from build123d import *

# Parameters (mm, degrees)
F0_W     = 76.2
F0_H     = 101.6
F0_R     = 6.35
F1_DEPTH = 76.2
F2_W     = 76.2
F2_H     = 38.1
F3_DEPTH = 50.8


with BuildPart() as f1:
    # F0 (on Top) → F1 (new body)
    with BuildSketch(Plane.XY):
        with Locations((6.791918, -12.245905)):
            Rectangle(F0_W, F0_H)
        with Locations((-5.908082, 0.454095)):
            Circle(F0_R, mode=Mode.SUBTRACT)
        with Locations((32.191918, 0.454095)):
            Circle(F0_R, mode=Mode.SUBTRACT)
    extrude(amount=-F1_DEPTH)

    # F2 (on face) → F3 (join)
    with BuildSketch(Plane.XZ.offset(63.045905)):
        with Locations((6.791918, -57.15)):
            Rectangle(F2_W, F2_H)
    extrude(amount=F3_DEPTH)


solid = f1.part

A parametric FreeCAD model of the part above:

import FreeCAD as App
import Part
import Sketcher
Q = App.Units.Quantity


def add_polygon(sketch, points):
    """Adds a closed chain of lines whose ends are joined by coincident constraints."""
    first, n = sketch.GeometryCount, len(points)
    for a, b in zip(points, points[1:] + points[:1]):
        sketch.addGeometry(Part.LineSegment(App.Vector(*a, 0), App.Vector(*b, 0)), False)
    for i in range(n):
        sketch.addConstraint(Sketcher.Constraint("Coincident", first + i, 2, first + (i + 1) % n, 1))

doc = App.newDocument("Part")
body = doc.addObject("PartDesign::Body", "Body")

sketch1 = doc.addObject("Sketcher::SketchObject", "Sketch")
body.addObject(sketch1)
sketch1.AttachmentSupport = (doc.XY_Plane, [""])
sketch1.MapMode = "FlatFace"
add_polygon(sketch1, [(-31, 39), (-31, -63), (45, -63), (45, 39)])
sketch1.addGeometry(Part.Circle(App.Vector(-6, 0, 0), App.Vector(0, 0, 1), 6), False)
sketch1.addGeometry(Part.Circle(App.Vector(32, 0, 0), App.Vector(0, 0, 1), 6), False)
sketch1.addConstraint(Sketcher.Constraint("Vertical", 0))
sketch1.addConstraint(Sketcher.Constraint("Horizontal", 1))
sketch1.addConstraint(Sketcher.Constraint("Vertical", 2))
sketch1.addConstraint(Sketcher.Constraint("Horizontal", 3))
sketch1.addConstraint(Sketcher.Constraint("Equal", 4, 5))
sketch1.addConstraint(Sketcher.Constraint("Horizontal", 4, 3, 5, 3))
sketch1.addConstraint(Sketcher.Constraint("Diameter", 4, Q("0.5 in")))
sketch1.addConstraint(Sketcher.Constraint("DistanceX", 1, 1, 1, 2, Q("3 in")))
sketch1.addConstraint(Sketcher.Constraint("DistanceY", 0, 2, 0, 1, Q("4 in")))
sketch1.addConstraint(Sketcher.Constraint("DistanceX", 0, 2, 4, 3, Q("1 in")))
sketch1.addConstraint(Sketcher.Constraint("DistanceX", 4, 3, 5, 3, Q("1.5 in")))
sketch1.addConstraint(Sketcher.Constraint("DistanceY", 0, 2, 4, 3, Q("2.5 in")))
sketch1.addConstraint(Sketcher.Constraint("DistanceX", 0, 2, -1, 1, Q("31.308082 mm")))
sketch1.addConstraint(Sketcher.Constraint("DistanceY", -1, 1, 4, 3, Q("0.454095 mm")))
pad1 = doc.addObject("PartDesign::Pad", "Pad")
body.addObject(pad1)
pad1.Profile = sketch1
pad1.Length = Q("3 in")
pad1.Reversed = True

sketch2 = doc.addObject("Sketcher::SketchObject", "Sketch001")
body.addObject(sketch2)
sketch2.AttachmentSupport = (doc.XZ_Plane, [""])
sketch2.MapMode = "FlatFace"
sketch2.AttachmentOffset = App.Placement(App.Vector(0, 0, 63.045905), App.Rotation())
add_polygon(sketch2, [(-31, -38), (-31, -76), (45, -76), (45, -38)])
sketch2.addConstraint(Sketcher.Constraint("Vertical", 0))
sketch2.addConstraint(Sketcher.Constraint("Horizontal", 1))
sketch2.addConstraint(Sketcher.Constraint("Vertical", 2))
sketch2.addConstraint(Sketcher.Constraint("Horizontal", 3))
sketch2.addConstraint(Sketcher.Constraint("DistanceX", 1, 1, 1, 2, Q("3 in")))
sketch2.addConstraint(Sketcher.Constraint("DistanceY", 0, 2, 0, 1, Q("1.5 in")))
sketch2.addConstraint(Sketcher.Constraint("DistanceY", 0, 2, -1, 1, Q("3 in")))
sketch2.addConstraint(Sketcher.Constraint("DistanceX", 0, 2, -1, 1, Q("31.308082 mm")))
pad2 = doc.addObject("PartDesign::Pad", "Pad001")
body.addObject(pad2)
pad2.Profile = sketch2
pad2.Length = Q("2 in")

doc.recompute()
